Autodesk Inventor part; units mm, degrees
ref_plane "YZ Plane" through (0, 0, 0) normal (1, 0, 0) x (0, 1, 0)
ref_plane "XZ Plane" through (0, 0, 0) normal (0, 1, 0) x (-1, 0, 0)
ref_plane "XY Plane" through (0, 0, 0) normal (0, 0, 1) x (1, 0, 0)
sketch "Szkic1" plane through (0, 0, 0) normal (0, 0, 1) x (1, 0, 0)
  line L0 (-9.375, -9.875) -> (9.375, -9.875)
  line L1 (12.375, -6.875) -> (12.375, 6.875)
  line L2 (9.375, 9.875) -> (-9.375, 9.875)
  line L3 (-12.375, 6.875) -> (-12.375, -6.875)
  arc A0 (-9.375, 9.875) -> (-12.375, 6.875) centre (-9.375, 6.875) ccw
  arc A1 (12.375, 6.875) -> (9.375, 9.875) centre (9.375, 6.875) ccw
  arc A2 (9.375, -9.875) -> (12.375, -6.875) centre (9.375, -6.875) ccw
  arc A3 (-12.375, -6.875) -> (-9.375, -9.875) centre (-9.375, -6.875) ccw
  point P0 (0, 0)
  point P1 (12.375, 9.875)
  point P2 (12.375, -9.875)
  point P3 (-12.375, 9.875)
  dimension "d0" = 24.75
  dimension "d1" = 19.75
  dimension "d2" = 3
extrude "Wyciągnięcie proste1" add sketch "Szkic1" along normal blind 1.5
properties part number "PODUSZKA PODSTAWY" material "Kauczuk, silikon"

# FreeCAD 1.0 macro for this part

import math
import FreeCAD as App
import Part
import Sketcher
from FreeCAD import Vector
Q = App.Units.Quantity

doc = App.newDocument("Part")
body = doc.addObject("PartDesign::Body", "Body")

# Sketch on XY plane
sketch1 = body.newObject("Sketcher::SketchObject", "Sketch")
sketch1.AttachmentSupport = (doc.getObject("XY_Plane"), [""])
sketch1.MapMode = "FlatFace"
sketch1.addGeometry([
    Part.ArcOfCircle(Part.Circle(Vector(-9.4, -6.9, 0), Vector(0, 0, 1), 3), math.radians(180), math.radians(270)),  # 0
    Part.LineSegment(Vector(-9.4, -9.9, 0), Vector(9.4, -9.9, 0)),  # 1
    Part.ArcOfCircle(Part.Circle(Vector(9.4, -6.9, 0), Vector(0, 0, 1), 3), math.radians(-90), math.radians(0)),  # 2
    Part.LineSegment(Vector(12.4, -6.9, 0), Vector(12.4, 6.9, 0)),  # 3
    Part.ArcOfCircle(Part.Circle(Vector(9.4, 6.9, 0), Vector(0, 0, 1), 3), math.radians(0), math.radians(90)),  # 4
    Part.LineSegment(Vector(9.4, 9.9, 0), Vector(-9.4, 9.9, 0)),  # 5
    Part.ArcOfCircle(Part.Circle(Vector(-9.4, 6.9, 0), Vector(0, 0, 1), 3), math.radians(90), math.radians(180)),  # 6
    Part.LineSegment(Vector(-12.4, 6.9, 0), Vector(-12.4, -6.9, 0)),  # 7
], False)
sketch1.addConstraint([
    Sketcher.Constraint("Tangent", 0, 2, 1, 1),
    Sketcher.Constraint("Tangent", 1, 2, 2, 1),
    Sketcher.Constraint("Tangent", 2, 2, 3, 1),
    Sketcher.Constraint("Tangent", 3, 2, 4, 1),
    Sketcher.Constraint("Tangent", 4, 2, 5, 1),
    Sketcher.Constraint("Tangent", 5, 2, 6, 1),
    Sketcher.Constraint("Tangent", 6, 2, 7, 1),
    Sketcher.Constraint("Tangent", 7, 2, 0, 1),
    Sketcher.Constraint("Horizontal", 1),
    Sketcher.Constraint("Vertical", 3),
    Sketcher.Constraint("Horizontal", 5),
    Sketcher.Constraint("Vertical", 7),
    Sketcher.Constraint("Equal", 0, 2),
    Sketcher.Constraint("Equal", 2, 4),
    Sketcher.Constraint("Equal", 4, 6),
    Sketcher.Constraint("Symmetric", 0, 3, 4, 3, -1, 1),
    Sketcher.Constraint("Radius", 0, Q("3 mm")),
    Sketcher.Constraint("DistanceY", 0, 2, 5, 2, Q("19.75 mm")),
    Sketcher.Constraint("DistanceX", 1, 1, 1, 2, Q("18.75 mm")),
])
pad1 = body.newObject("PartDesign::Pad", "Pad")
pad1.Profile = sketch1
pad1.Length = 1.5

doc.recompute()
